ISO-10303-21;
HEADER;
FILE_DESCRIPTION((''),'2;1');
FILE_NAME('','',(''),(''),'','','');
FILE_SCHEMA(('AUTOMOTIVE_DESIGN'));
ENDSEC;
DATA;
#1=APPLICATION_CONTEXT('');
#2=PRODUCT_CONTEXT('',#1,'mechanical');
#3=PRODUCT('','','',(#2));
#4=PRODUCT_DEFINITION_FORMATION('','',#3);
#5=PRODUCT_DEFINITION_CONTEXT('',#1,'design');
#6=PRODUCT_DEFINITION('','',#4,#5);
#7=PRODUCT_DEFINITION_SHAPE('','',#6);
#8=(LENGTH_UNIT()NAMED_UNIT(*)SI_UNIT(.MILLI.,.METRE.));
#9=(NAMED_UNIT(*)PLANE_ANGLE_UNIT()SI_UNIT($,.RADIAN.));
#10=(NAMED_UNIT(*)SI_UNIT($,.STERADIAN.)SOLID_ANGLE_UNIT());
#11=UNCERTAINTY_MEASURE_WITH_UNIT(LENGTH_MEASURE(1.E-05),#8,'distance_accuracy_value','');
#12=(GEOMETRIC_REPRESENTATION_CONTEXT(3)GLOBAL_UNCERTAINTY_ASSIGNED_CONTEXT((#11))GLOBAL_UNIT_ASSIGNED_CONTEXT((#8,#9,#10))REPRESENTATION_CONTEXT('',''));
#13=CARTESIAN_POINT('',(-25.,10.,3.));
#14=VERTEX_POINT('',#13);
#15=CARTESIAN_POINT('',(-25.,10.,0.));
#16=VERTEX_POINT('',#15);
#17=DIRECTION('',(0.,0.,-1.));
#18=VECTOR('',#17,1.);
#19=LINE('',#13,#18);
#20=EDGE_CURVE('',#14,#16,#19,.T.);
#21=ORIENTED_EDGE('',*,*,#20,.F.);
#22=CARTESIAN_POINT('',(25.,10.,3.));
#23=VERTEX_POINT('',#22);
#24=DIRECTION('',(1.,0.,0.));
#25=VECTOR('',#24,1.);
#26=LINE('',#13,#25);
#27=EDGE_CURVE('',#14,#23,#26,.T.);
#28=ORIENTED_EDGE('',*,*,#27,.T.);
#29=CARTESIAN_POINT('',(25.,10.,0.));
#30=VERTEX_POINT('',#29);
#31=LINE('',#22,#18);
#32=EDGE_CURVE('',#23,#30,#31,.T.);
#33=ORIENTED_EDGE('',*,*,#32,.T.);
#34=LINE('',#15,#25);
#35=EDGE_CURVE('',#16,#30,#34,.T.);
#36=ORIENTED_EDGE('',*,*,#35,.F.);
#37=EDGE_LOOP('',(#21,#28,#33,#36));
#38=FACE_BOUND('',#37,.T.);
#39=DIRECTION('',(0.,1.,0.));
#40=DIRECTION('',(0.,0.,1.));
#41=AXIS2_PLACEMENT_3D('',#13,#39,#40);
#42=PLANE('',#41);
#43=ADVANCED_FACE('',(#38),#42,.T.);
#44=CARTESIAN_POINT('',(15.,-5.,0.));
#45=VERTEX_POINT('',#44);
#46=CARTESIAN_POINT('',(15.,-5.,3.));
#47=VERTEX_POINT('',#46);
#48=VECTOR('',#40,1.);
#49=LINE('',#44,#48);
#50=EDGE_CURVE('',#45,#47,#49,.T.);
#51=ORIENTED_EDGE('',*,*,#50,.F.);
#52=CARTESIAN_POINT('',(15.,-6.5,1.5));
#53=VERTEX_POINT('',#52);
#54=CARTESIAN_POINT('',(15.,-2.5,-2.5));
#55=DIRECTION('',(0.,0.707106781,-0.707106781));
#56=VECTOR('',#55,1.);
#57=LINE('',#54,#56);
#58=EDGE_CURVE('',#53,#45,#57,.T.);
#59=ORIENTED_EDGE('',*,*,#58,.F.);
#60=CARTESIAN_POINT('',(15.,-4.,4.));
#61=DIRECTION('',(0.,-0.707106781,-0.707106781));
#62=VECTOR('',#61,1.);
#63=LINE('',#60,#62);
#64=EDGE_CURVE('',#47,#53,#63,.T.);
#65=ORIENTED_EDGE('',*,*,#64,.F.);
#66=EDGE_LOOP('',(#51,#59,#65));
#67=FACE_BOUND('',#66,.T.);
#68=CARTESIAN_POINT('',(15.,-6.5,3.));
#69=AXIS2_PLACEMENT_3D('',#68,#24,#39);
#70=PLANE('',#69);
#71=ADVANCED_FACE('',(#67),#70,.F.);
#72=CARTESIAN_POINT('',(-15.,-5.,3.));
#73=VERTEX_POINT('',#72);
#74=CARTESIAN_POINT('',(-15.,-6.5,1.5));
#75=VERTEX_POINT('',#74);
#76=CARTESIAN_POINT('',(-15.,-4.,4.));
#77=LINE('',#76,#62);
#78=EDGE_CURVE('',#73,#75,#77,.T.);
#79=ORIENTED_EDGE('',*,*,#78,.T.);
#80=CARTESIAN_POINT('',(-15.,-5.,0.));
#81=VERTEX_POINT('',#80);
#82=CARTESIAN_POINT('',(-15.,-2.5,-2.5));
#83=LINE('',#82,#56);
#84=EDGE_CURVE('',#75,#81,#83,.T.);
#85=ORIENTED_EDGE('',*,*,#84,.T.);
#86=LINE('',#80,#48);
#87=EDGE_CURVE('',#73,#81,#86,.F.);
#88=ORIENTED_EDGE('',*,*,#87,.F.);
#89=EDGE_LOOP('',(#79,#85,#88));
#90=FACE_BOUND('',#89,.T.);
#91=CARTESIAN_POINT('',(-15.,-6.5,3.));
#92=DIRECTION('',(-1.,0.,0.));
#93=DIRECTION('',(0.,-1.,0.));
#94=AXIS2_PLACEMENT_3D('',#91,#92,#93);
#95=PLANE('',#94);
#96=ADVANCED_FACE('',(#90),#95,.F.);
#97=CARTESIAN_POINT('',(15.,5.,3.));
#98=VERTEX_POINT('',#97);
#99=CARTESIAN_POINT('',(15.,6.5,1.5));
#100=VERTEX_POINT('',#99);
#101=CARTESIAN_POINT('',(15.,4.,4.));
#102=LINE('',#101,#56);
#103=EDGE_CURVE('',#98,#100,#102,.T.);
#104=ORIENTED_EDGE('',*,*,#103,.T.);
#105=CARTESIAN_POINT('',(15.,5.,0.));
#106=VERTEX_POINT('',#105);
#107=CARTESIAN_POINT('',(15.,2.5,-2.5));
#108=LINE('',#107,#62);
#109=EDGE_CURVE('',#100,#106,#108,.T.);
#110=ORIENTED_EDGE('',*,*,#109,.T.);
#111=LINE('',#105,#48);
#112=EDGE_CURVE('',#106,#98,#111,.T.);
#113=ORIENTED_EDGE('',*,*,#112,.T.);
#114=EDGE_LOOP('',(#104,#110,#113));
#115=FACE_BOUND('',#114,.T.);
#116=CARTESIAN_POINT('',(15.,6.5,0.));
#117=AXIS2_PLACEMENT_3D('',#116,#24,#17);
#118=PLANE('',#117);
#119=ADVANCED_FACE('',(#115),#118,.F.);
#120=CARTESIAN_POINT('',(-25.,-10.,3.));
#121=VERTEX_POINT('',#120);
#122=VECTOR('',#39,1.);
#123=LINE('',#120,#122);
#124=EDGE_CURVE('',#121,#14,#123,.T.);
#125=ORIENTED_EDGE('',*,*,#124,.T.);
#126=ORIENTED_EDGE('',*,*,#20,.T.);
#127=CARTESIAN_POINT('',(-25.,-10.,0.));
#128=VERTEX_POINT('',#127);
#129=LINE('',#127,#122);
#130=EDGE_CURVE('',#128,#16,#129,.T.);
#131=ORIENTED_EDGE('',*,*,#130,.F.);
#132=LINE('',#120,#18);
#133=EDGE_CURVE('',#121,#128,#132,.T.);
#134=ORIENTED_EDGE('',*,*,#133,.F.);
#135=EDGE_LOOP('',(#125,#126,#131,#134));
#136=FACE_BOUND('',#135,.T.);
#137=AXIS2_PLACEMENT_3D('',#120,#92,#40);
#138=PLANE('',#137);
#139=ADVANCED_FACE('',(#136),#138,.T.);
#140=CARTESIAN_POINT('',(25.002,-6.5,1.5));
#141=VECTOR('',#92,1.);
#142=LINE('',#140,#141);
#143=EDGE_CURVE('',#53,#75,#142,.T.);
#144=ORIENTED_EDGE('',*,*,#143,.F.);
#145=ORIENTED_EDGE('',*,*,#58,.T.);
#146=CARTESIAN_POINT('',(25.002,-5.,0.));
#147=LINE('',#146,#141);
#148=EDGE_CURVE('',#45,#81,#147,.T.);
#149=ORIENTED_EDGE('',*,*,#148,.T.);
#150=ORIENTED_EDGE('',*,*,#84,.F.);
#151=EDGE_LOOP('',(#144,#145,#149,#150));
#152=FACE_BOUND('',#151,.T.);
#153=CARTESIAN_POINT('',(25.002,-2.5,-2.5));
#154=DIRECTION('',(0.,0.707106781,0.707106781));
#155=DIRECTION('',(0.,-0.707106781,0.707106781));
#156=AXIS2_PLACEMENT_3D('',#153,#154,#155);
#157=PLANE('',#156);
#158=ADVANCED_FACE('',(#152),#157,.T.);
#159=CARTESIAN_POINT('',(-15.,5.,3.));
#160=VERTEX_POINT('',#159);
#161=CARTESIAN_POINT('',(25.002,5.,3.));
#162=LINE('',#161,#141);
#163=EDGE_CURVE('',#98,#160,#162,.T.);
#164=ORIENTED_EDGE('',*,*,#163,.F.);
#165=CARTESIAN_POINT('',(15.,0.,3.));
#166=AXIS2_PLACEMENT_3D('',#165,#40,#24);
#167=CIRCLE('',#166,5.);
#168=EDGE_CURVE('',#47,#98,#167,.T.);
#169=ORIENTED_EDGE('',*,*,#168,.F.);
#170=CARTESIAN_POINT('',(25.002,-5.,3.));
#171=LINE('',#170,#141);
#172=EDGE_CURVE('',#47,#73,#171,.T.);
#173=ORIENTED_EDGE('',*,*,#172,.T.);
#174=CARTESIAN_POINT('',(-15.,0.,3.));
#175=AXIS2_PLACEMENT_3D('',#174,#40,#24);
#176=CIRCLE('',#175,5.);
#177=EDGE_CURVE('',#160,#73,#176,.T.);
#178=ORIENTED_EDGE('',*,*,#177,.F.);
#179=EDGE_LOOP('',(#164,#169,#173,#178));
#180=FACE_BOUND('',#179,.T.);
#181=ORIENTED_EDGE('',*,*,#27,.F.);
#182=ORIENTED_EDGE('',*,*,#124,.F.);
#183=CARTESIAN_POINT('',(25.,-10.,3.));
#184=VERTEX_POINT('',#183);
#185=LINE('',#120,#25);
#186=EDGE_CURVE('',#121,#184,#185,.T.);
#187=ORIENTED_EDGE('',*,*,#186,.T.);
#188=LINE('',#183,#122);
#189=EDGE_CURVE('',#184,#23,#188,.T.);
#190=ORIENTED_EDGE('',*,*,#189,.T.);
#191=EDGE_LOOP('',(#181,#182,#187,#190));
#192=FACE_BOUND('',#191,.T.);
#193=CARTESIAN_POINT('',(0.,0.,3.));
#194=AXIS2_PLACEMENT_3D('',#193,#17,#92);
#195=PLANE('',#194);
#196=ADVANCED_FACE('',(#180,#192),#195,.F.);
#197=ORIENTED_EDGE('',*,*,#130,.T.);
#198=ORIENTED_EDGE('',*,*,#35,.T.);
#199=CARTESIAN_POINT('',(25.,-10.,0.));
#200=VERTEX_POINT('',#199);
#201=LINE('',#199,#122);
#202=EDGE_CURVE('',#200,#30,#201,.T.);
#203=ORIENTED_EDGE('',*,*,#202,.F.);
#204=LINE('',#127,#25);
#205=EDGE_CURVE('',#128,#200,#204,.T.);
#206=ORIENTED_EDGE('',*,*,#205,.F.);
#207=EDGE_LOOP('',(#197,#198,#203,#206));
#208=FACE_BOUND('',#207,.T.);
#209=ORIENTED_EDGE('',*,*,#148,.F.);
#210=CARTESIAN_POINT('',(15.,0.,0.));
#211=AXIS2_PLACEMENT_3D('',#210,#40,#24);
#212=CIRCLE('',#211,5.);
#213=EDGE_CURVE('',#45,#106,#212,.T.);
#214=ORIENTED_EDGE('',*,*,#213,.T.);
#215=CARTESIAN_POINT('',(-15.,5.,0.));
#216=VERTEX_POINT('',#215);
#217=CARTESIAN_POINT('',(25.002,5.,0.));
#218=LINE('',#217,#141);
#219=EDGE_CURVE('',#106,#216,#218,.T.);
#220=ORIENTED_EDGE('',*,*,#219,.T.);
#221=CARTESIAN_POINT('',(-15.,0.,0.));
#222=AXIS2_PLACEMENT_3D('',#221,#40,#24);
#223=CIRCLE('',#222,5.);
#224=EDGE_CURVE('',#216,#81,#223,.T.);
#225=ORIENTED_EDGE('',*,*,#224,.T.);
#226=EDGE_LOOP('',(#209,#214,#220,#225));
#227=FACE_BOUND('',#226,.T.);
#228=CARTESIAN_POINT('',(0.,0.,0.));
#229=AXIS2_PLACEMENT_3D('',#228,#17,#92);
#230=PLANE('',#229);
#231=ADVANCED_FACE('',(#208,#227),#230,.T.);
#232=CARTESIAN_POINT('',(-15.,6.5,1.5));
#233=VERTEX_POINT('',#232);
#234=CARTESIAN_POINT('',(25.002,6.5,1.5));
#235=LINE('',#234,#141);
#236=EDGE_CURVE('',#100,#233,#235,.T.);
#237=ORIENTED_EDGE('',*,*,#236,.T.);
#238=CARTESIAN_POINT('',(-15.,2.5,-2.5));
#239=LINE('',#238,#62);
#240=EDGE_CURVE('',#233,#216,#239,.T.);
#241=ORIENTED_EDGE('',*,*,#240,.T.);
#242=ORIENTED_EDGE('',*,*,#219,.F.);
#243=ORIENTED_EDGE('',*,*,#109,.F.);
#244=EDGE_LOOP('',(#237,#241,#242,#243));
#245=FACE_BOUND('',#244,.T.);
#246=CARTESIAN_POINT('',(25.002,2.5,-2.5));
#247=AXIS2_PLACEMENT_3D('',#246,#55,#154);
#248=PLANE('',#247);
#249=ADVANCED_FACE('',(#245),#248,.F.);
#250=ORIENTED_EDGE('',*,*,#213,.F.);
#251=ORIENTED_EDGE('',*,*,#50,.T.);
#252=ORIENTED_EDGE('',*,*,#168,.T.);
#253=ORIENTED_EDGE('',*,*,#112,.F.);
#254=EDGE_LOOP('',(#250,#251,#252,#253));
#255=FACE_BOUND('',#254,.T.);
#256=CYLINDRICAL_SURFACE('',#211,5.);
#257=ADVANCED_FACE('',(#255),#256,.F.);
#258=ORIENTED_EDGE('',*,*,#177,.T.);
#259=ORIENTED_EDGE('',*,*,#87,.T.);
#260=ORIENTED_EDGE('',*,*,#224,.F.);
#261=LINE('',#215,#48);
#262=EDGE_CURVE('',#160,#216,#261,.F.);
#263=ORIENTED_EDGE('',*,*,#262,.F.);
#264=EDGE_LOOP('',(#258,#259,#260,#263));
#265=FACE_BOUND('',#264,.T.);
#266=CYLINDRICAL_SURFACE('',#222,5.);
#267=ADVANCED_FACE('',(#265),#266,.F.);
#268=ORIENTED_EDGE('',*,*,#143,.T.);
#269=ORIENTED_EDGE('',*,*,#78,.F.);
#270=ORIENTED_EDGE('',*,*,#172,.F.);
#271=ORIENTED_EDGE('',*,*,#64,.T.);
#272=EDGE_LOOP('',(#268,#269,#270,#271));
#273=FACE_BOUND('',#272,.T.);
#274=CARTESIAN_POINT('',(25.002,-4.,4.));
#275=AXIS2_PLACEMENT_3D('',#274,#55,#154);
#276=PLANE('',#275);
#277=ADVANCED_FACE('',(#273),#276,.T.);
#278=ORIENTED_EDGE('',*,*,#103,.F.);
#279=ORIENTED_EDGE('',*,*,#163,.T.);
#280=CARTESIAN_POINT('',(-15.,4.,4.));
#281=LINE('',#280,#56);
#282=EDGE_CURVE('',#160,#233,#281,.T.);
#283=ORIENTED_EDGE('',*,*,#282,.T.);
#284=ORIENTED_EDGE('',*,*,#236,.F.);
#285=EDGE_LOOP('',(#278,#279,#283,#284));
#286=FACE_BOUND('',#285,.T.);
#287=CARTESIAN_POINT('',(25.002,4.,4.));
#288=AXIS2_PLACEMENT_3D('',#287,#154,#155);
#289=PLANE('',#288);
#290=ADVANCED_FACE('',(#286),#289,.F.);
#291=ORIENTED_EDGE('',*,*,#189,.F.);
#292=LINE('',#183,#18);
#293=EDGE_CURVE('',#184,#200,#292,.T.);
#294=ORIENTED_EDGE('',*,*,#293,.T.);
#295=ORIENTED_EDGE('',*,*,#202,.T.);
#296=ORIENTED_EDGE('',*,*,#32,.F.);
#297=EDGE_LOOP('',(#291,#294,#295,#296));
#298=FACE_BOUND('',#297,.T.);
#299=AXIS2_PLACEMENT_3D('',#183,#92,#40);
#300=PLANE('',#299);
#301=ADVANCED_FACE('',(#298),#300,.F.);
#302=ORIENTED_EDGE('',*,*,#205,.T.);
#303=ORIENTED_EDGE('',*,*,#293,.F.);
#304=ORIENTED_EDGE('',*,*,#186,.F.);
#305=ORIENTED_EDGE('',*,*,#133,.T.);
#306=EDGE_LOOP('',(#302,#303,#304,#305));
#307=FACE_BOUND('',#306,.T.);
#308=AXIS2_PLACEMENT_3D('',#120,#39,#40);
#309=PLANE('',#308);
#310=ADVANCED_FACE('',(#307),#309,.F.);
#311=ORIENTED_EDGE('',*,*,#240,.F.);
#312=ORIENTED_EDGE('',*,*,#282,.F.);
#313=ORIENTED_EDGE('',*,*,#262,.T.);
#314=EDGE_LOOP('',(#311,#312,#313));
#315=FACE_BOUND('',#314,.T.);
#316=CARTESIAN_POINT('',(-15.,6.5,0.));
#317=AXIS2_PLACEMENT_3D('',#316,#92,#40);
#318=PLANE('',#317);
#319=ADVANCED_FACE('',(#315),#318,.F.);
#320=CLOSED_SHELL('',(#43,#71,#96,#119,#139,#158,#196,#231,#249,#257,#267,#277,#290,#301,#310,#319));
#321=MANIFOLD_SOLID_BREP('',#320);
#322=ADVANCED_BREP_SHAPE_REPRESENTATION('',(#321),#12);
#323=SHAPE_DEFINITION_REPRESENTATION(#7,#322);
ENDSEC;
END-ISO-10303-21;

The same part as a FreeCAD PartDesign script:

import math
import FreeCAD as App
import Part
import Sketcher
from FreeCAD import Vector

doc = App.newDocument("Part")
body = doc.addObject("PartDesign::Body", "Body")

# Sketch on XY plane
sketch1 = doc.addObject("Sketcher::SketchObject", "Sketch")
body.addObject(sketch1)
sketch1.AttachmentSupport = (doc.XY_Plane, [""])
sketch1.MapMode = "FlatFace"
sketch1.addGeometry([
    Part.LineSegment(Vector(-25, 10, 0), Vector(-25, -10, 0)),
    Part.LineSegment(Vector(-25, -10, 0), Vector(25, -10, 0)),
    Part.LineSegment(Vector(25, -10, 0), Vector(25, 10, 0)),
    Part.LineSegment(Vector(25, 10, 0), Vector(-25, 10, 0)),
], False)
sketch1.addConstraint([
    Sketcher.Constraint("Coincident", 0, 2, 1, 1),
    Sketcher.Constraint("Coincident", 1, 2, 2, 1),
    Sketcher.Constraint("Coincident", 2, 2, 3, 1),
    Sketcher.Constraint("Coincident", 3, 2, 0, 1),
    Sketcher.Constraint("Vertical", 0),
    Sketcher.Constraint("Horizontal", 1),
    Sketcher.Constraint("Vertical", 2),
    Sketcher.Constraint("Horizontal", 3),
    Sketcher.Constraint("Symmetric", 0, 2, 2, 2, -1, 1),
    Sketcher.Constraint("DistanceX", 1, 1, 1, 2, 50.0),
    Sketcher.Constraint("DistanceY", 0, 2, 0, 1, 20.0),
])
pad1 = doc.addObject("PartDesign::Pad", "Pad")
body.addObject(pad1)
pad1.Profile = sketch1
pad1.Length = 3

# Sketch on XY plane
sketch2 = doc.addObject("Sketcher::SketchObject", "Sketch001")
body.addObject(sketch2)
sketch2.AttachmentSupport = (doc.XY_Plane, [""])
sketch2.MapMode = "FlatFace"
sketch2.AttachmentOffset = App.Placement(Vector(0, 0, 3), App.Rotation())
sketch2.addGeometry([
    Part.LineSegment(Vector(-15, -5, 0), Vector(15, -5, 0)),
    Part.ArcOfCircle(Part.Circle(Vector(15, 0, 0), Vector(0, 0, 1), 5), math.radians(-90), math.radians(90)),
    Part.LineSegment(Vector(15, 5, 0), Vector(-15, 5, 0)),
    Part.ArcOfCircle(Part.Circle(Vector(-15, 0, 0), Vector(0, 0, 1), 5), math.radians(90), math.radians(270)),
], False)
sketch2.addConstraint([
    Sketcher.Constraint("Tangent", 0, 2, 1, 1),
    Sketcher.Constraint("Tangent", 1, 2, 2, 1),
    Sketcher.Constraint("Tangent", 2, 2, 3, 1),
    Sketcher.Constraint("Tangent", 3, 2, 0, 1),
    Sketcher.Constraint("Horizontal", 0),
    Sketcher.Constraint("Horizontal", 2),
    Sketcher.Constraint("Symmetric", 1, 3, 3, 3, -1, 1),
    Sketcher.Constraint("Radius", 1, 5.0),
    Sketcher.Constraint("DistanceX", 0, 1, 0, 2, 30.0),
])
pocket1 = doc.addObject("PartDesign::Pocket", "Pocket")
body.addObject(pocket1)
pocket1.Profile = sketch2
pocket1.Length = 3

# Sketch on XZ plane
sketch3 = doc.addObject("Sketcher::SketchObject", "Sketch002")
body.addObject(sketch3)
sketch3.AttachmentSupport = (doc.XZ_Plane, [""])
sketch3.MapMode = "FlatFace"
sketch3.AttachmentOffset = App.Placement(Vector(0, 0, -5), App.Rotation())
sketch3.addGeometry([
    Part.LineSegment(Vector(-15, 3, 0), Vector(-15, 0, 0)),
    Part.LineSegment(Vector(-15, 0, 0), Vector(15, 0, 0)),
    Part.LineSegment(Vector(15, 0, 0), Vector(15, 3, 0)),
    Part.LineSegment(Vector(15, 3, 0), Vector(-15, 3, 0)),
], False)
sketch3.addConstraint([
    Sketcher.Constraint("Coincident", 0, 2, 1, 1),
    Sketcher.Constraint("Coincident", 1, 2, 2, 1),
    Sketcher.Constraint("Coincident", 2, 2, 3, 1),
    Sketcher.Constraint("Coincident", 3, 2, 0, 1),
    Sketcher.Constraint("Vertical", 0),
    Sketcher.Constraint("Horizontal", 1),
    Sketcher.Constraint("Vertical", 2),
    Sketcher.Constraint("Horizontal", 3),
    Sketcher.Constraint("Symmetric", 0, 2, 1, 2, -1, 1),
    Sketcher.Constraint("DistanceX", 1, 1, 1, 2, 30.0),
    Sketcher.Constraint("DistanceY", 0, 2, 0, 1, 3.0),
])
pocket2 = doc.addObject("PartDesign::Pocket", "Pocket001")
body.addObject(pocket2)
pocket2.Profile = sketch3
pocket2.Length = 1.5

# Sketch on YZ plane
sketch4 = doc.addObject("Sketcher::SketchObject", "Sketch003")
body.addObject(sketch4)
sketch4.AttachmentSupport = (doc.YZ_Plane, [""])
sketch4.MapMode = "FlatFace"
sketch4.AttachmentOffset = App.Placement(Vector(0, 0, -15), App.Rotation())
sketch4.addGeometry([
    Part.LineSegment(Vector(6.5, 3, 0), Vector(5, 3, 0)),
    Part.LineSegment(Vector(5, 3, 0), Vector(6.5, 1.5, 0)),
    Part.LineSegment(Vector(6.5, 1.5, 0), Vector(6.5, 3, 0)),
], False)
sketch4.addConstraint([
    Sketcher.Constraint("Coincident", 0, 2, 1, 1),
    Sketcher.Constraint("Coincident", 1, 2, 2, 1),
    Sketcher.Constraint("Coincident", 2, 2, 0, 1),
    Sketcher.Constraint("Horizontal", 0),
    Sketcher.Constraint("Vertical", 2),
    Sketcher.Constraint("Equal", 0, 2),
    Sketcher.Constraint("DistanceX", 0, 2, 0, 1, 1.5),
    Sketcher.Constraint("DistanceX", -1, 1, 0, 2, 5.0),
    Sketcher.Constraint("DistanceY", -1, 1, 0, 2, 3.0),
])
pad2 = doc.addObject("PartDesign::Pad", "Pad001")
body.addObject(pad2)
pad2.Profile = sketch4
pad2.Type = "UpToFirst"

# Sketch on YZ plane
sketch5 = doc.addObject("Sketcher::SketchObject", "Sketch004")
body.addObject(sketch5)
sketch5.AttachmentSupport = (doc.YZ_Plane, [""])
sketch5.MapMode = "FlatFace"
sketch5.AttachmentOffset = App.Placement(Vector(0, 0, -15), App.Rotation())
sketch5.addGeometry([
    Part.LineSegment(Vector(6.5, 0, 0), Vector(6.5, 1.5, 0)),
    Part.LineSegment(Vector(6.5, 1.5, 0), Vector(5, 0, 0)),
    Part.LineSegment(Vector(5, 0, 0), Vector(6.5, 0, 0)),
], False)
sketch5.addConstraint([
    Sketcher.Constraint("Coincident", 0, 2, 1, 1),
    Sketcher.Constraint("Coincident", 1, 2, 2, 1),
    Sketcher.Constraint("Coincident", 2, 2, 0, 1),
    Sketcher.Constraint("Vertical", 0),
    Sketcher.Constraint("Horizontal", 2),
    Sketcher.Constraint("PointOnObject", 1, 2, -1),
    Sketcher.Constraint("Equal", 2, 0),
    Sketcher.Constraint("DistanceX", 2, 1, 2, 2, 1.5),
    Sketcher.Constraint("DistanceX", -1, 1, 1, 2, 5.0),
])
pad3 = doc.addObject("PartDesign::Pad", "Pad002")
body.addObject(pad3)
pad3.Profile = sketch5
pad3.Type = "UpToFirst"

# Sketch on XZ plane
sketch6 = doc.addObject("Sketcher::SketchObject", "Sketch005")
body.addObject(sketch6)
sketch6.AttachmentSupport = (doc.XZ_Plane, [""])
sketch6.MapMode = "FlatFace"
sketch6.AttachmentOffset = App.Placement(Vector(0, 0, 5), App.Rotation())
sketch6.addGeometry([
    Part.LineSegment(Vector(-15, 0, 0), Vector(-15, 3, 0)),
    Part.LineSegment(Vector(-15, 3, 0), Vector(15, 3, 0)),
    Part.LineSegment(Vector(15, 3, 0), Vector(15, 0, 0)),
    Part.LineSegment(Vector(15, 0, 0), Vector(-15, 0, 0)),
], False)
sketch6.addConstraint([
    Sketcher.Constraint("Coincident", 0, 2, 1, 1),
    Sketcher.Constraint("Coincident", 1, 2, 2, 1),
    Sketcher.Constraint("Coincident", 2, 2, 3, 1),
    Sketcher.Constraint("Coincident", 3, 2, 0, 1),
    Sketcher.Constraint("Vertical", 0),
    Sketcher.Constraint("Horizontal", 1),
    Sketcher.Constraint("Vertical", 2),
    Sketcher.Constraint("Horizontal", 3),
    Sketcher.Constraint("Symmetric", 2, 2, 3, 2, -1, 1),
    Sketcher.Constraint("DistanceX", 1, 1, 1, 2, 30.0),
    Sketcher.Constraint("DistanceY", 0, 1, 0, 2, 3.0),
])
pocket3 = doc.addObject("PartDesign::Pocket", "Pocket002")
body.addObject(pocket3)
pocket3.Profile = sketch6
pocket3.Length = 1.5
pocket3.Reversed = True

# Sketch on YZ plane
sketch7 = doc.addObject("Sketcher::SketchObject", "Sketch006")
body.addObject(sketch7)
sketch7.AttachmentSupport = (doc.YZ_Plane, [""])
sketch7.MapMode = "FlatFace"
sketch7.AttachmentOffset = App.Placement(Vector(0, 0, -15), App.Rotation())
sketch7.addGeometry([
    Part.LineSegment(Vector(-6.5, 1.5, 0), Vector(-5, 3, 0)),
    Part.LineSegment(Vector(-5, 3, 0), Vector(-6.5, 3, 0)),
    Part.LineSegment(Vector(-6.5, 3, 0), Vector(-6.5, 1.5, 0)),
], False)
sketch7.addConstraint([
    Sketcher.Constraint("Coincident", 0, 2, 1, 1),
    Sketcher.Constraint("Coincident", 1, 2, 2, 1),
    Sketcher.Constraint("Coincident", 2, 2, 0, 1),
    Sketcher.Constraint("Horizontal", 1),
    Sketcher.Constraint("Vertical", 2),
    Sketcher.Constraint("Equal", 1, 2),
    Sketcher.Constraint("DistanceX", 1, 2, 1, 1, 1.5),
    Sketcher.Constraint("DistanceX", 0, 2, -1, 1, 5.0),
    Sketcher.Constraint("DistanceY", -1, 1, 0, 2, 3.0),
])
pad4 = doc.addObject("PartDesign::Pad", "Pad003")
body.addObject(pad4)
pad4.Profile = sketch7
pad4.Type = "UpToFirst"

# Sketch on YZ plane
sketch8 = doc.addObject("Sketcher::SketchObject", "Sketch007")
body.addObject(sketch8)
sketch8.AttachmentSupport = (doc.YZ_Plane, [""])
sketch8.MapMode = "FlatFace"
sketch8.AttachmentOffset = App.Placement(Vector(0, 0, -15), App.Rotation())
sketch8.addGeometry([
    Part.LineSegment(Vector(-5, 0, 0), Vector(-6.5, 1.5, 0)),
    Part.LineSegment(Vector(-6.5, 1.5, 0), Vector(-6.5, 0, 0)),
    Part.LineSegment(Vector(-6.5, 0, 0), Vector(-5, 0, 0)),
], False)
sketch8.addConstraint([
    Sketcher.Constraint("Coincident", 0, 2, 1, 1),
    Sketcher.Constraint("Coincident", 1, 2, 2, 1),
    Sketcher.Constraint("Coincident", 2, 2, 0, 1),
    Sketcher.Constraint("Vertical", 1),
    Sketcher.Constraint("Horizontal", 2),
    Sketcher.Constraint("PointOnObject", 1, 2, -1),
    Sketcher.Constraint("Equal", 2, 1),
    Sketcher.Constraint("DistanceX", 2, 1, 2, 2, 1.5),
    Sketcher.Constraint("DistanceX", 2, 2, -1, 1, 5.0),
])
pad5 = doc.addObject("PartDesign::Pad", "Pad004")
body.addObject(pad5)
pad5.Profile = sketch8
pad5.Type = "UpToFirst"

doc.recompute()
